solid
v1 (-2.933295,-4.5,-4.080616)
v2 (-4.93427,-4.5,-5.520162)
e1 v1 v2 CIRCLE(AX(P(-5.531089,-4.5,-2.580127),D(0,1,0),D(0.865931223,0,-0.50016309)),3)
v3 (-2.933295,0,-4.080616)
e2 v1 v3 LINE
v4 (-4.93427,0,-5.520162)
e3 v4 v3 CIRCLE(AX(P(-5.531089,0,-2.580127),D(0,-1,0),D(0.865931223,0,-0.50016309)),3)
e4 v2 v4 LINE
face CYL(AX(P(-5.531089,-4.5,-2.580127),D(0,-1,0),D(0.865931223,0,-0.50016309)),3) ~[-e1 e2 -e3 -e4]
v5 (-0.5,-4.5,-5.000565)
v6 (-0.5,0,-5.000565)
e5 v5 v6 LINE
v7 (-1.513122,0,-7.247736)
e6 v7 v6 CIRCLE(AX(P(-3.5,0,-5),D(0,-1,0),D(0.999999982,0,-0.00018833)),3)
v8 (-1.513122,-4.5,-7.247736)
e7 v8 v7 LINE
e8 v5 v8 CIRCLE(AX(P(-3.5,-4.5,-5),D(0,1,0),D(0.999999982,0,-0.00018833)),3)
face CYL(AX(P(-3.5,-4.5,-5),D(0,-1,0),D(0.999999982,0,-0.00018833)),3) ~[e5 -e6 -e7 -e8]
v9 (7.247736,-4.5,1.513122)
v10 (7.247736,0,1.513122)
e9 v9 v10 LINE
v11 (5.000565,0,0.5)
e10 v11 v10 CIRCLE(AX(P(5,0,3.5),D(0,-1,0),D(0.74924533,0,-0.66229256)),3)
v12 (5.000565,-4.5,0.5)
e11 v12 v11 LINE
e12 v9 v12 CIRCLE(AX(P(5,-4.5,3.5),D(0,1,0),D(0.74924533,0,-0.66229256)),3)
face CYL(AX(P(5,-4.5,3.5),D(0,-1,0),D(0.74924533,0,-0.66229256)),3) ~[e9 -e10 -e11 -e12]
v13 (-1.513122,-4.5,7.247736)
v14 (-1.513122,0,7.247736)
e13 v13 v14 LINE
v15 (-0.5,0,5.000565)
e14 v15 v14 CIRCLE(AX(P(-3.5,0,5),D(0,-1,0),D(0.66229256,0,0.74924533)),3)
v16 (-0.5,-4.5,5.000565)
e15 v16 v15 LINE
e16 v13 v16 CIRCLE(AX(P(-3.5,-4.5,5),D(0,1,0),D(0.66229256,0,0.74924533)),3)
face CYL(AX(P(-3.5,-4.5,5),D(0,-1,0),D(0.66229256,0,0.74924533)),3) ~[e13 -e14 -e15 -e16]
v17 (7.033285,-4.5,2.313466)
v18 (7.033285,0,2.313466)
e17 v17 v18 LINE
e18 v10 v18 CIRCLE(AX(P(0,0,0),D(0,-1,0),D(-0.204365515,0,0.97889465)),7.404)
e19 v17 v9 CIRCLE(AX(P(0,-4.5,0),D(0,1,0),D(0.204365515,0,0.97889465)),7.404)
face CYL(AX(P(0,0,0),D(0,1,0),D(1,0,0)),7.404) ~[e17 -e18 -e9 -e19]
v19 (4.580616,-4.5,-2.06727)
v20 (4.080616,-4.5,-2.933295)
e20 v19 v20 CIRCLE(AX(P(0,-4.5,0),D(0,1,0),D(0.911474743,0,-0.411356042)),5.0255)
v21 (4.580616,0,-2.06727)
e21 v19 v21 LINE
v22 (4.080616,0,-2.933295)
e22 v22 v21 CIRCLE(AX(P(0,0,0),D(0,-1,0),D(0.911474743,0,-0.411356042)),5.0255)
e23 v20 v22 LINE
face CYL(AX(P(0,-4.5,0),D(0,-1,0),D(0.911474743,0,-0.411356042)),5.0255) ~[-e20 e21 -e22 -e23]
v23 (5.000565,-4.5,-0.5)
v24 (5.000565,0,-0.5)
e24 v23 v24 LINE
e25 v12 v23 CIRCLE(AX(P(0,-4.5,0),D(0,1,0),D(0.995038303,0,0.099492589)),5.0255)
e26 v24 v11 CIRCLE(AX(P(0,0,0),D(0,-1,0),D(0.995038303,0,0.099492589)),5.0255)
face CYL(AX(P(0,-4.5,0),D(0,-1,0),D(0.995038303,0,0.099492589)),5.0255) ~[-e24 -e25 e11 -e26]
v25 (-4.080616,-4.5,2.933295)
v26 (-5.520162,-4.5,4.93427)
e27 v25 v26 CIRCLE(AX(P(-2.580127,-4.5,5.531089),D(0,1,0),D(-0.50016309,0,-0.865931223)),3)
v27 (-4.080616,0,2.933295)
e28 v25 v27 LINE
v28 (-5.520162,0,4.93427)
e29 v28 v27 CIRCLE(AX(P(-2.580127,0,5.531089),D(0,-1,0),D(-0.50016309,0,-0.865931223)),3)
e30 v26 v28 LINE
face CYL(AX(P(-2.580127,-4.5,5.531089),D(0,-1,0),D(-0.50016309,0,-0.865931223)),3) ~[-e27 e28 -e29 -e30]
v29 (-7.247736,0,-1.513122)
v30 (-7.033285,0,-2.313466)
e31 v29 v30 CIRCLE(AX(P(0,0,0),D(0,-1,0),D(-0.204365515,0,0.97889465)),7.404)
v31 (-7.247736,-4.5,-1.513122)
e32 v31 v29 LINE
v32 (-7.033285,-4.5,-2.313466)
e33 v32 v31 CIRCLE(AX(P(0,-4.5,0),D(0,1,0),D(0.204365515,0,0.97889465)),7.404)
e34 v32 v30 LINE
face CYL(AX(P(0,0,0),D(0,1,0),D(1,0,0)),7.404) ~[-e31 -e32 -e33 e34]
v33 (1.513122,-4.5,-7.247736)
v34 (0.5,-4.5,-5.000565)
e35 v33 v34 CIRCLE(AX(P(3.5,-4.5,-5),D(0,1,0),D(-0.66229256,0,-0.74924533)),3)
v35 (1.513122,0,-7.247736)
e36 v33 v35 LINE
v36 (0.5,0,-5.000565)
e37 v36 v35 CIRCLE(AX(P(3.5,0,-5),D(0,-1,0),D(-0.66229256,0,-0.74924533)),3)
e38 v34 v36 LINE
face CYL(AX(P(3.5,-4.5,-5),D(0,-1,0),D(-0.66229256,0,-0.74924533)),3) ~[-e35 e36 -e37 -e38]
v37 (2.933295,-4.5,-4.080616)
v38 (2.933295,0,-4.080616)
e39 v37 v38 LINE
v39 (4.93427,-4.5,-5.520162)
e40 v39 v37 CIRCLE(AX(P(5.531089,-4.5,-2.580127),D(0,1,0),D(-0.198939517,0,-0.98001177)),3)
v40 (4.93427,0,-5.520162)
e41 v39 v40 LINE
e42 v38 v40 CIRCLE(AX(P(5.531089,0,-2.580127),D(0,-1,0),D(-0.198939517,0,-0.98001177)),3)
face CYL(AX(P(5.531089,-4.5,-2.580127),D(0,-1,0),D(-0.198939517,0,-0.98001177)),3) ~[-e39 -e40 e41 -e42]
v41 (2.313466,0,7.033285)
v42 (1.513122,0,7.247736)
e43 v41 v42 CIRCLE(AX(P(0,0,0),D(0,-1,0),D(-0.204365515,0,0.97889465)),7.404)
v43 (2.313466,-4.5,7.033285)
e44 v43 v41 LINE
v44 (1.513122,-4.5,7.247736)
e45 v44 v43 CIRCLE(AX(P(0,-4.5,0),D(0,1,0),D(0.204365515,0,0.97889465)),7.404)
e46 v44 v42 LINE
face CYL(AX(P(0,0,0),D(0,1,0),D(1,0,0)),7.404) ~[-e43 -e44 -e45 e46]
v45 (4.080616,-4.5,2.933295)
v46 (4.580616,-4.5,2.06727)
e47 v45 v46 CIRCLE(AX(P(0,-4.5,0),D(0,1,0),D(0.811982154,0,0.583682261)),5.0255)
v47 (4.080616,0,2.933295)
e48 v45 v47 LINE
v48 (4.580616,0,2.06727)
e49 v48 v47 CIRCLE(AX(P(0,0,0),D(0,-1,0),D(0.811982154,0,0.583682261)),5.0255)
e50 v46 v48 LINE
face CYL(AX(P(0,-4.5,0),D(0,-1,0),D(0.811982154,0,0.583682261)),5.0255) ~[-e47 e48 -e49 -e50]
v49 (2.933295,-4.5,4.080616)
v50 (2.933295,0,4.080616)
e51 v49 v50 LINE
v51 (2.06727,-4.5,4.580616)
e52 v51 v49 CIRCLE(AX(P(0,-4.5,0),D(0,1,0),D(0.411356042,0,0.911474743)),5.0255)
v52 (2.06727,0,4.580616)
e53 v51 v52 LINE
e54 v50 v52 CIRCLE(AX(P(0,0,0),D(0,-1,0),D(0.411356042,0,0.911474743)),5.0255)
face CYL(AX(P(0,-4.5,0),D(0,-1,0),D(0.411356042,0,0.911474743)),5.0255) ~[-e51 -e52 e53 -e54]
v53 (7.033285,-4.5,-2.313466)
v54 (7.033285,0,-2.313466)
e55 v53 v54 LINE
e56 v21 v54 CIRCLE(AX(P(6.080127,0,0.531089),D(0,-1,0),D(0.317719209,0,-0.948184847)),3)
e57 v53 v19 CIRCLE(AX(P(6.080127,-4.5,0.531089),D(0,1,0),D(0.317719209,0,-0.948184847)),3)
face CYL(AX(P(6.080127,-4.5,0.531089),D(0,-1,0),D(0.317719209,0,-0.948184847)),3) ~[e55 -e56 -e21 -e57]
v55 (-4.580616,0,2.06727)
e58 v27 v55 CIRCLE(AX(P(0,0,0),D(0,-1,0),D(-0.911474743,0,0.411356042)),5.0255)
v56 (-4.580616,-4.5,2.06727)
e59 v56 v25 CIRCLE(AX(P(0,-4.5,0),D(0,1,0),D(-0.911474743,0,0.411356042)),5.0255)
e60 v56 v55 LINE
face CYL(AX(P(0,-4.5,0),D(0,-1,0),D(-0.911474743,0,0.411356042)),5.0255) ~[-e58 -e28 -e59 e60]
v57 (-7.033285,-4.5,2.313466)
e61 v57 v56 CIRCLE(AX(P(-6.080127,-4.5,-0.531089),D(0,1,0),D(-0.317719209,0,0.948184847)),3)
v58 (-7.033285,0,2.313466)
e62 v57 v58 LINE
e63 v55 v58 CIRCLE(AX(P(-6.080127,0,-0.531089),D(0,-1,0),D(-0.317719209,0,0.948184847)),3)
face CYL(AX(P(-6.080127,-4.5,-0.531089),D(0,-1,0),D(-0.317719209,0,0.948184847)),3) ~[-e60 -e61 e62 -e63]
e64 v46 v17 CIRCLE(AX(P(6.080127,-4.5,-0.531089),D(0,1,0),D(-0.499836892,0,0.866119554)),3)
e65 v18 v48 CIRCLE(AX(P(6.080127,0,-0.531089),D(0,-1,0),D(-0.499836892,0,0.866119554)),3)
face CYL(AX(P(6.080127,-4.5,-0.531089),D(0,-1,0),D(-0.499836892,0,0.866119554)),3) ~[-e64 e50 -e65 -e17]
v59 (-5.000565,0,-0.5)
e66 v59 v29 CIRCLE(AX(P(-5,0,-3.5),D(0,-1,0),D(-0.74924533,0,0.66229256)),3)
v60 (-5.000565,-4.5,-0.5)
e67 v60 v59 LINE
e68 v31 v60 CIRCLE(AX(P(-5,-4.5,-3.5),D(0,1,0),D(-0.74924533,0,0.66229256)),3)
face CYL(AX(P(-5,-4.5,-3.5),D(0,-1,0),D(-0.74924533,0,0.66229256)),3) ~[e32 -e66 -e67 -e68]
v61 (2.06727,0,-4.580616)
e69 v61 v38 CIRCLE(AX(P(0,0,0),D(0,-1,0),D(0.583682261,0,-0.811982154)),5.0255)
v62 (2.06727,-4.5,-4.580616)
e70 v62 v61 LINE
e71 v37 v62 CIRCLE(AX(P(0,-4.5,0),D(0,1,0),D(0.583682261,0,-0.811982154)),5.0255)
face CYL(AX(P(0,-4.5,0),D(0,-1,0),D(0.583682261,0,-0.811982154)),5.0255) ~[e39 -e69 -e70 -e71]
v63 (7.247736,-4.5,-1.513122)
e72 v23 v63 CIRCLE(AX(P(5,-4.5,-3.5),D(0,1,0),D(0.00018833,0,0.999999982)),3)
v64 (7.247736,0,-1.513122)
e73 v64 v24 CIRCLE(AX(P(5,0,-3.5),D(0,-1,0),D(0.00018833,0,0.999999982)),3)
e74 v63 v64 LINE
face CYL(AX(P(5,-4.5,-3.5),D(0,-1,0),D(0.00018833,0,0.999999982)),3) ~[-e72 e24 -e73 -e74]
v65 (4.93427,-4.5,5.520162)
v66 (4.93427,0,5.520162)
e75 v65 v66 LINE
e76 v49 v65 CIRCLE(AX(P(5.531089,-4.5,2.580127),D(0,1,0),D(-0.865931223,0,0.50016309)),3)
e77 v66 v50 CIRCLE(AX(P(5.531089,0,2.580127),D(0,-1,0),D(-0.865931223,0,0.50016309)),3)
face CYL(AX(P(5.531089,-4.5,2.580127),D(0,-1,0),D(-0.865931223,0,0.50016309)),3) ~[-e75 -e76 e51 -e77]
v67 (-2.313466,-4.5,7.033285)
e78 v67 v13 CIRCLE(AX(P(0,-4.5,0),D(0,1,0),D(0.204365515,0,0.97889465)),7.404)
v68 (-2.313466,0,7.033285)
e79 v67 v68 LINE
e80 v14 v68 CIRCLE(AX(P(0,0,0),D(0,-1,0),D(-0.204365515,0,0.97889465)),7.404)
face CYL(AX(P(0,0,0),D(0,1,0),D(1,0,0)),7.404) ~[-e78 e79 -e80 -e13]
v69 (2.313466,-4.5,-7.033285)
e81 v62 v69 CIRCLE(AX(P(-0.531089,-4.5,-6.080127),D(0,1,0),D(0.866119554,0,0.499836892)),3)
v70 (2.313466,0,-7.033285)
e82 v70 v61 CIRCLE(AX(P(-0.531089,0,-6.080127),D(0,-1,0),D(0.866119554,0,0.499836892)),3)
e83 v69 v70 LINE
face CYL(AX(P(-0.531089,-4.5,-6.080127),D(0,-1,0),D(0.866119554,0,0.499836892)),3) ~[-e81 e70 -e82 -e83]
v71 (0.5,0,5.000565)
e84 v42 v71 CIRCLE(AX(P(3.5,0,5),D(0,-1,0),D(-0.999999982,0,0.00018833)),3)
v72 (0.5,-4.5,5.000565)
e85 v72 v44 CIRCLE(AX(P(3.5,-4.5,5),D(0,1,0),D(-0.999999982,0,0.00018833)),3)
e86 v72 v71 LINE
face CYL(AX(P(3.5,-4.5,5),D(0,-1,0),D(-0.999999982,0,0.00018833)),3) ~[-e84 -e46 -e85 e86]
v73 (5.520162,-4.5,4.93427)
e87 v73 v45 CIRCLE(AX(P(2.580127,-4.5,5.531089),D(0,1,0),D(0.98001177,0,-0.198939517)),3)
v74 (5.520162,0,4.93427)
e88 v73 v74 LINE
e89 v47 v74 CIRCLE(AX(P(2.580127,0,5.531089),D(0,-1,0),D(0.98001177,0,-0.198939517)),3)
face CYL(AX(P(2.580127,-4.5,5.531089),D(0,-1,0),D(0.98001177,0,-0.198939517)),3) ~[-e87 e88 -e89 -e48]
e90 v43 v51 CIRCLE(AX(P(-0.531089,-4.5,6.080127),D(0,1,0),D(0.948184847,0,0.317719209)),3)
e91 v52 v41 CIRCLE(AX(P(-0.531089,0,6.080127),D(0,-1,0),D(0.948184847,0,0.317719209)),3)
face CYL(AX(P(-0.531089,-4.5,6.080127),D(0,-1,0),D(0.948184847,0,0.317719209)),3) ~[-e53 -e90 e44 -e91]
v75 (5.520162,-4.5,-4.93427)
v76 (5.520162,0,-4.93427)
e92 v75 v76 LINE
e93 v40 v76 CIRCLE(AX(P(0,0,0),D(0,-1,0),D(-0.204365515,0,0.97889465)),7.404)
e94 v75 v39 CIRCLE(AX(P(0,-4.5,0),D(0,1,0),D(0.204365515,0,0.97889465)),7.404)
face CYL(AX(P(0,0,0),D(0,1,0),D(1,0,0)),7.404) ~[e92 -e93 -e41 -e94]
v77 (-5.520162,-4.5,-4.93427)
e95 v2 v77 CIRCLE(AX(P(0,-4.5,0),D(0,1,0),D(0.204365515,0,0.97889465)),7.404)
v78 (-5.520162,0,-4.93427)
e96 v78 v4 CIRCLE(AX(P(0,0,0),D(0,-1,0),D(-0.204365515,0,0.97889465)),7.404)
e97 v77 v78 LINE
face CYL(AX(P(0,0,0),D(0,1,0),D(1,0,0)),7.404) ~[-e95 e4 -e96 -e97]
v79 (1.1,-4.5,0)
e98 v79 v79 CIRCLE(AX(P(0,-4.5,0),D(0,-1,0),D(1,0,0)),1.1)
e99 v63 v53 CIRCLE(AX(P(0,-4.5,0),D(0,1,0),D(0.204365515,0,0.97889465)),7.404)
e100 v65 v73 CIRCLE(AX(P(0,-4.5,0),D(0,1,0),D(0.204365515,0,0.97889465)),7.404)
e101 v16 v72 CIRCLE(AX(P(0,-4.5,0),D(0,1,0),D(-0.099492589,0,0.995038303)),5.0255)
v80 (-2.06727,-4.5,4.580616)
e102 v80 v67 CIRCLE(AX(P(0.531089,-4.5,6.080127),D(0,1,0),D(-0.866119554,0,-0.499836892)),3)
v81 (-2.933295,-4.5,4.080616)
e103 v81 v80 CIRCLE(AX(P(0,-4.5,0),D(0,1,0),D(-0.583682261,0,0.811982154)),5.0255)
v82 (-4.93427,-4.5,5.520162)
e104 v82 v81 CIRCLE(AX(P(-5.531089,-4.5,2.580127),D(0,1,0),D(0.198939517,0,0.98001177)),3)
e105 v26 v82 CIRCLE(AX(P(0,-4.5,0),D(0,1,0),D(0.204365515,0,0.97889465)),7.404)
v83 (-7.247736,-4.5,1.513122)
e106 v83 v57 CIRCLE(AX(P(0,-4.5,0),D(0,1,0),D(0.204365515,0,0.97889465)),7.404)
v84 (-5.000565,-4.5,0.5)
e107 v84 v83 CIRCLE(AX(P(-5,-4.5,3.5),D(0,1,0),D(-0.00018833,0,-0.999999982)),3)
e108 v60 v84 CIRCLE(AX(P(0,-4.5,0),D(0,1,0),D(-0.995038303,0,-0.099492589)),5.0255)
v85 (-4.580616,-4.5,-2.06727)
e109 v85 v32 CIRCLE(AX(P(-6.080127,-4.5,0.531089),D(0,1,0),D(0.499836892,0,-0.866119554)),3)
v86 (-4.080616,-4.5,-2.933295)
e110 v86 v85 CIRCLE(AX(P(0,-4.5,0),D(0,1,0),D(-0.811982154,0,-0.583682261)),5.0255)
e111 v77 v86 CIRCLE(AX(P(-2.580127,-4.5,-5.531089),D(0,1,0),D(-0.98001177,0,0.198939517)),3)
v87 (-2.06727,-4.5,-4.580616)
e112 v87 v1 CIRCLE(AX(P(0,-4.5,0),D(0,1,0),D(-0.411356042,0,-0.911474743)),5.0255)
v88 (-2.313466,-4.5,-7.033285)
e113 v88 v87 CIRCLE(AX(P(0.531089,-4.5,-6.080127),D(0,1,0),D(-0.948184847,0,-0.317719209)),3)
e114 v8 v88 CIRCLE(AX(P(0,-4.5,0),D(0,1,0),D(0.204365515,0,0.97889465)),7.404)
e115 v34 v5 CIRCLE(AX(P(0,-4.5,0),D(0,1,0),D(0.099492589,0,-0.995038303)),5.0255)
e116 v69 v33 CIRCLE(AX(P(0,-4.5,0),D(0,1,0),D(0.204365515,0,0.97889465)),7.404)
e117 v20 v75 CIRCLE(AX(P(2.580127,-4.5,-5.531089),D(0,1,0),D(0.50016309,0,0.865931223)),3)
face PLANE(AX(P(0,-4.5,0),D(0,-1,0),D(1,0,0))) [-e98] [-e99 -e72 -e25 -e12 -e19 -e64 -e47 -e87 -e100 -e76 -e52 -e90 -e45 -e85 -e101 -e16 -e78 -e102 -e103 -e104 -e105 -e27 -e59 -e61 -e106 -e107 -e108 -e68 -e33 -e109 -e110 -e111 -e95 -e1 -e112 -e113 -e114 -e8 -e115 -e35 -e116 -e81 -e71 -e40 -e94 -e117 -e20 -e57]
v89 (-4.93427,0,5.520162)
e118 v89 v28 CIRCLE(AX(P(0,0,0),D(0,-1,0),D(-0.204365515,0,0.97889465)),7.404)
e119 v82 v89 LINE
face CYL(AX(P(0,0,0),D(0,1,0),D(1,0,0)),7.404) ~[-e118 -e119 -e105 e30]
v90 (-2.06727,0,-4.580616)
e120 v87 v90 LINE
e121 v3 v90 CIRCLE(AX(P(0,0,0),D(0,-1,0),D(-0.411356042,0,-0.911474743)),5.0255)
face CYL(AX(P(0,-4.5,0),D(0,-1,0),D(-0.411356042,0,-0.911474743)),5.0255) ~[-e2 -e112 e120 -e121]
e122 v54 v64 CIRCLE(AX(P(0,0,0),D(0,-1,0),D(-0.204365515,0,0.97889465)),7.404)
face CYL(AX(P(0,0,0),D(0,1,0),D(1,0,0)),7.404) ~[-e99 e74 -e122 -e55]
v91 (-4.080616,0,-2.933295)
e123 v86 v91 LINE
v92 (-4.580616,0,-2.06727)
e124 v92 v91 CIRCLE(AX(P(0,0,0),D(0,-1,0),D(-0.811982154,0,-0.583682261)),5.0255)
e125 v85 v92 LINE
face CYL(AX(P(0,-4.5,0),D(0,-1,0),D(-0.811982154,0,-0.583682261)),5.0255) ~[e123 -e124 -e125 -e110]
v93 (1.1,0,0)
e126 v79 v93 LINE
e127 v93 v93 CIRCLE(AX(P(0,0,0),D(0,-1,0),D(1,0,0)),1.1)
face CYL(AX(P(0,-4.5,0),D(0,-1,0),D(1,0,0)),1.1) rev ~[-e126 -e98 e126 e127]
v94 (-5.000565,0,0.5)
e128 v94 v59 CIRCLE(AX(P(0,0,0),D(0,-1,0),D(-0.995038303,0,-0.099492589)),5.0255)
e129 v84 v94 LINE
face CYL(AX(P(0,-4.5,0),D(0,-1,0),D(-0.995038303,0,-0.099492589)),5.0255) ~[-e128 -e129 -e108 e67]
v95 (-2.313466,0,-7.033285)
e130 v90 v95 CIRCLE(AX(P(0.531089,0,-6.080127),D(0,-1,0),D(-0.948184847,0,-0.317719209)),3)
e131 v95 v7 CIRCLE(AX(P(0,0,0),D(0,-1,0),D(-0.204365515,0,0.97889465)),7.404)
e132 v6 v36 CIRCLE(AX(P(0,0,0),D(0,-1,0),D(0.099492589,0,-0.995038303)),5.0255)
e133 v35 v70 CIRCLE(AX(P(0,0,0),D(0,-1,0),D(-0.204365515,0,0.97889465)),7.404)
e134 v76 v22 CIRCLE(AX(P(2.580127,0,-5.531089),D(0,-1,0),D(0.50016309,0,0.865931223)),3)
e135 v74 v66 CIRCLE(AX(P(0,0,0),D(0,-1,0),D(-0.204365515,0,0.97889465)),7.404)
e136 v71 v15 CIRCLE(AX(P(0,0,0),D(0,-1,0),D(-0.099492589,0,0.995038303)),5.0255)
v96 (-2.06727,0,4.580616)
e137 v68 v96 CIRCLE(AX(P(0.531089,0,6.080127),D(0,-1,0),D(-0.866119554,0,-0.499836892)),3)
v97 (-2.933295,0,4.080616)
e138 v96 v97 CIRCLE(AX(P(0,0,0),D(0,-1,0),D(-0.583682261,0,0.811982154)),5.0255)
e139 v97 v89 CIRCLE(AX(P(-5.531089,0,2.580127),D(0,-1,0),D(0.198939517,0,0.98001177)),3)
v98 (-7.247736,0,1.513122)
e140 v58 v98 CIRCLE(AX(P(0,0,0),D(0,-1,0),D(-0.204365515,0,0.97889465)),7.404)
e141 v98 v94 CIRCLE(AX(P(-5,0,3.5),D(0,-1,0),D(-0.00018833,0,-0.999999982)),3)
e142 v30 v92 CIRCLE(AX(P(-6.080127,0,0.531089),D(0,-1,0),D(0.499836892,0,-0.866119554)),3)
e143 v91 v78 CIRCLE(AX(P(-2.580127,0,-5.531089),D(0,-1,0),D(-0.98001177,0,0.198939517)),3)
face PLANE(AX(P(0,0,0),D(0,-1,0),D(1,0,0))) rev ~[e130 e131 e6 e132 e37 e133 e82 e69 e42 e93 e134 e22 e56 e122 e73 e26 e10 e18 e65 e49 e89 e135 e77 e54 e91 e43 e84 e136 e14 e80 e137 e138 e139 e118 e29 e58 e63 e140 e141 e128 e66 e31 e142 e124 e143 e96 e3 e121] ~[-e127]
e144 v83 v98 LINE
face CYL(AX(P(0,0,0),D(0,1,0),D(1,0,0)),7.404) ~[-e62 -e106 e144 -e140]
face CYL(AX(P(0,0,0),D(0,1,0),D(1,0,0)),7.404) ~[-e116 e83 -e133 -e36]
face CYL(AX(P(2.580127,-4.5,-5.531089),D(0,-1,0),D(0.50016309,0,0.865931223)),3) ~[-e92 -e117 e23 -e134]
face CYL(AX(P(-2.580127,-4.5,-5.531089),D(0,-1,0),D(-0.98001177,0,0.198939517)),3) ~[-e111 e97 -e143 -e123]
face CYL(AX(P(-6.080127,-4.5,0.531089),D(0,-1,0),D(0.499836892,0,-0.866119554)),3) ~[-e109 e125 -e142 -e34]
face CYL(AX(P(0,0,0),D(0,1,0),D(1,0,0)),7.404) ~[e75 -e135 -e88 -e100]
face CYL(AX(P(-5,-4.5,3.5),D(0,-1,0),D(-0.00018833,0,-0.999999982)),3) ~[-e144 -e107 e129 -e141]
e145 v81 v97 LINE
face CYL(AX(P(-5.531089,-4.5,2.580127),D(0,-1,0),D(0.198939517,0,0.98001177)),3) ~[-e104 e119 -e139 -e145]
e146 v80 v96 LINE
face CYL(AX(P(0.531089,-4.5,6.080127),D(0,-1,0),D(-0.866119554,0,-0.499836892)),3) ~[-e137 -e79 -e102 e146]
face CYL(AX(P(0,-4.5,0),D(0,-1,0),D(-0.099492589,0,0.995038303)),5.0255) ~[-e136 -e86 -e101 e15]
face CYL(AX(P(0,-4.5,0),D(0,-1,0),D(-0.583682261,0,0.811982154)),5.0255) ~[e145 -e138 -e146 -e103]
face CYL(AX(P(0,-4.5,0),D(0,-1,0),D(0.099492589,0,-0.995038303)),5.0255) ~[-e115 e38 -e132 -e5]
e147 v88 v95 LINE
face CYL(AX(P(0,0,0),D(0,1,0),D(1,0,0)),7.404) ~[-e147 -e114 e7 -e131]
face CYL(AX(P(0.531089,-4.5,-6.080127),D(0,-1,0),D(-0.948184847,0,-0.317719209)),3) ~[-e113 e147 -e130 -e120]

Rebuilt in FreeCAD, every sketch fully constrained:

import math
import FreeCAD as App
import Part
import Sketcher

V = App.Vector
Q = App.Units.Quantity

doc = App.newDocument("Part")
body = doc.addObject("PartDesign::Body", "Body")

sketch1 = body.newObject("Sketcher::SketchObject", "Sketch")
sketch1.AttachmentSupport = (doc.getObject("XZ_Plane"), [""])
sketch1.MapMode = "FlatFace"
sketch1.addGeometry(Part.Circle(V(0, 0, 0), V(0, 0, 1), 7), False)
sketch1.addConstraint([
    Sketcher.Constraint("Coincident", 0, 3, -1, 1),
    Sketcher.Constraint("Diameter", 0, Q("14.808 mm")),
])
pad1 = body.newObject("PartDesign::Pad", "Pad")
pad1.Profile = sketch1
pad1.Length = 4.5

sketch2 = body.newObject("Sketcher::SketchObject", "Sketch001")
sketch2.AttachmentSupport = (doc.getObject("XZ_Plane"), [""])
sketch2.MapMode = "FlatFace"
sketch2.AttachmentOffset = App.Placement(V(0, 0, 4.5), App.Rotation())
sketch2.addGeometry([
    Part.ArcOfCircle(Part.Circle(V(0, 0, 0), V(0, 0, 1), 5), math.radians(84.29), math.radians(95.71)),
    Part.ArcOfCircle(Part.Circle(V(3.5, 5, 0), V(0, 0, 1), 3), math.radians(131), math.radians(180)),
    Part.ArcOfCircle(Part.Circle(V(0, 0, 0), V(0, 0, 1), 7.4), math.radians(78), math.radians(102)),
    Part.ArcOfCircle(Part.Circle(V(-3.5, 5, 0), V(0, 0, 1), 3), math.radians(0), math.radians(49)),
], False)
sketch2.addConstraint([
    Sketcher.Constraint("Coincident", 0, 1, 1, 2),
    Sketcher.Constraint("Coincident", 1, 1, 2, 1),
    Sketcher.Constraint("Coincident", 2, 2, 3, 2),
    Sketcher.Constraint("Coincident", 3, 1, 0, 2),
    Sketcher.Constraint("Coincident", 0, 3, -1, 1),
    Sketcher.Constraint("Coincident", 2, 3, -1, 1),
    Sketcher.Constraint("Equal", 1, 3),
    Sketcher.Constraint("Symmetric", 1, 3, 3, 3, -2),
    Sketcher.Constraint("Radius", 1, Q("3 mm")),
    Sketcher.Constraint("DistanceY", -1, 1, 1, 3, Q("5 mm")),
    Sketcher.Constraint("Radius", 2, Q("7.404 mm")),
    Sketcher.Constraint("DistanceX", 3, 3, 1, 3, Q("7 mm")),
    Sketcher.Constraint("Radius", 0, Q("5.0255 mm")),
])
pocket1 = body.newObject("PartDesign::Pocket", "Pocket")
pocket1.Profile = sketch2
pocket1.Type = "ThroughAll"
doc.recompute()

polarpattern = body.newObject("PartDesign::PolarPattern", "PolarPattern")
polarpattern.Originals = [pocket1]
polarpattern.Axis = (doc.getObject("Y_Axis"), [""])
polarpattern.Angle = 360
polarpattern.Occurrences = 12
body.Tip = polarpattern

sketch3 = body.newObject("Sketcher::SketchObject", "Sketch002")
sketch3.AttachmentSupport = (doc.getObject("XZ_Plane"), [""])
sketch3.MapMode = "FlatFace"
sketch3.AttachmentOffset = App.Placement(V(0, 0, 4.5), App.Rotation())
sketch3.addGeometry(Part.Circle(V(0, 0, 0), V(0, 0, 1), 1.1), False)
sketch3.addConstraint([
    Sketcher.Constraint("Coincident", 0, 3, -1, 1),
    Sketcher.Constraint("Diameter", 0, Q("2.2 mm")),
])
pocket2 = body.newObject("PartDesign::Pocket", "Pocket001")
pocket2.Profile = sketch3
pocket2.Type = "ThroughAll"

doc.recompute()
